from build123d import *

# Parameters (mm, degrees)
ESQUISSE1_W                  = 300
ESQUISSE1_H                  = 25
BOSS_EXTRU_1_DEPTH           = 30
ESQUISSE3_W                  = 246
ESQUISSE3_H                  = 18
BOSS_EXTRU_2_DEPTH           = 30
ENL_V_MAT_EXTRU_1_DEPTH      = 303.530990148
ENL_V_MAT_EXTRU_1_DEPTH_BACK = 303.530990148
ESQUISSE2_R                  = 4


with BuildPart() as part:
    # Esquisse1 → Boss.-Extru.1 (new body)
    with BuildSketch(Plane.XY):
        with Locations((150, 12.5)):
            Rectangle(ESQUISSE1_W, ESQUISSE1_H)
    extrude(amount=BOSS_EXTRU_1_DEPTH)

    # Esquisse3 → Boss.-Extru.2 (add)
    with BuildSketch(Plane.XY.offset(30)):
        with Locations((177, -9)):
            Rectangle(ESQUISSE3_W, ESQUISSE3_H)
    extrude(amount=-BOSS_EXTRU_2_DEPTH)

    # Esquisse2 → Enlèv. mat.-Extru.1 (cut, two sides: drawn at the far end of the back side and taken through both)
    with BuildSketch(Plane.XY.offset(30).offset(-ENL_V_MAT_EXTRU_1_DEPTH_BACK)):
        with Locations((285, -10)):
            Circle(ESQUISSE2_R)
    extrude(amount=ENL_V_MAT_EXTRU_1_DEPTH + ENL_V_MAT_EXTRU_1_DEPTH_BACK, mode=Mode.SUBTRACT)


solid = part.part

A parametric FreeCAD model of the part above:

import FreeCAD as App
import Part
import Sketcher


def add_polygon(sketch, points):
    """Adds a closed chain of lines whose ends are joined by coincident constraints."""
    first, n = sketch.GeometryCount, len(points)
    for a, b in zip(points, points[1:] + points[:1]):
        sketch.addGeometry(Part.LineSegment(App.Vector(*a, 0), App.Vector(*b, 0)), False)
    for i in range(n):
        sketch.addConstraint(Sketcher.Constraint("Coincident", first + i, 2, first + (i + 1) % n, 1))

doc = App.newDocument("Part")
params = doc.addObject("Spreadsheet::Sheet", "Params")
for row, (alias, value) in enumerate([
    ("sketch1_width", "300 mm"),
    ("sketch1_height", "25 mm"),
    ("pad1_length", "30 mm"),
    ("sketch2_width", "246 mm"),
    ("sketch2_height", "18 mm"),
    ("pad2_length", "30 mm"),
    ("sketch3_diameter", "8 mm"),
], start=1):
    params.set(f"A{row}", alias)
    params.set(f"B{row}", "=" + value)
    params.setAlias(f"B{row}", alias)

body = doc.addObject("PartDesign::Body", "Body")

# Sketch on XY plane
sketch1 = body.newObject("Sketcher::SketchObject", "Sketch")
sketch1.AttachmentSupport = (doc.getObject("XY_Plane"), [""])
sketch1.MapMode = "FlatFace"
add_polygon(sketch1, [(0, 25), (0, 0), (300, 0), (300, 25)])  # lines 0-3
sketch1.addConstraint(Sketcher.Constraint("Vertical", 0))
sketch1.addConstraint(Sketcher.Constraint("Horizontal", 1))
sketch1.addConstraint(Sketcher.Constraint("Vertical", 2))
sketch1.addConstraint(Sketcher.Constraint("Horizontal", 3))
sketch1.addConstraint(Sketcher.Constraint("Coincident", 0, 2, -1, 1))
sketch1.addConstraint(Sketcher.Constraint("DistanceX", 1, 1, 1, 2, 300.0))
sketch1.addConstraint(Sketcher.Constraint("DistanceY", 0, 2, 0, 1, 25.0))
sketch1.setExpression("Constraints[9]", "Params.sketch1_width")
sketch1.setExpression("Constraints[10]", "Params.sketch1_height")
pad1 = body.newObject("PartDesign::Pad", "Pad")
pad1.Profile = sketch1
pad1.setExpression("Length", "Params.pad1_length")

# Sketch on XY plane
sketch2 = body.newObject("Sketcher::SketchObject", "Sketch001")
sketch2.AttachmentSupport = (doc.getObject("XY_Plane"), [""])
sketch2.MapMode = "FlatFace"
sketch2.AttachmentOffset = App.Placement(App.Vector(0, 0, 30), App.Rotation())
add_polygon(sketch2, [(54, 0), (54, -18), (300, -18), (300, 0)])  # lines 0-3
sketch2.addConstraint(Sketcher.Constraint("Vertical", 0))
sketch2.addConstraint(Sketcher.Constraint("Horizontal", 1))
sketch2.addConstraint(Sketcher.Constraint("Vertical", 2))
sketch2.addConstraint(Sketcher.Constraint("Horizontal", 3))
sketch2.addConstraint(Sketcher.Constraint("PointOnObject", 2, 2, -1))
sketch2.addConstraint(Sketcher.Constraint("DistanceX", 1, 1, 1, 2, 246.0))
sketch2.addConstraint(Sketcher.Constraint("DistanceY", 0, 2, 0, 1, 18.0))
sketch2.addConstraint(Sketcher.Constraint("DistanceX", -1, 1, 0, 2, 54.0))
sketch2.setExpression("Constraints[9]", "Params.sketch2_width")
sketch2.setExpression("Constraints[10]", "Params.sketch2_height")
pad2 = body.newObject("PartDesign::Pad", "Pad001")
pad2.Profile = sketch2
pad2.setExpression("Length", "Params.pad2_length")
pad2.Reversed = True

# Sketch on XY plane
sketch3 = body.newObject("Sketcher::SketchObject", "Sketch002")
sketch3.AttachmentSupport = (doc.getObject("XY_Plane"), [""])
sketch3.MapMode = "FlatFace"
sketch3.AttachmentOffset = App.Placement(App.Vector(0, 0, 30), App.Rotation())
sketch3.addGeometry(Part.Circle(App.Vector(285, -10, 0), App.Vector(0, 0, 1), 4), False)
sketch3.addConstraint(Sketcher.Constraint("Diameter", 0, 8.0))
sketch3.addConstraint(Sketcher.Constraint("DistanceX", -1, 1, 0, 3, 285.0))
sketch3.addConstraint(Sketcher.Constraint("DistanceY", 0, 3, -1, 1, 10.0))
sketch3.setExpression("Constraints[0]", "Params.sketch3_diameter")
pocket1 = body.newObject("PartDesign::Pocket", "Pocket")
pocket1.Profile = sketch3
pocket1.Type = "ThroughAll"
pocket1.Midplane = True

doc.recompute()
